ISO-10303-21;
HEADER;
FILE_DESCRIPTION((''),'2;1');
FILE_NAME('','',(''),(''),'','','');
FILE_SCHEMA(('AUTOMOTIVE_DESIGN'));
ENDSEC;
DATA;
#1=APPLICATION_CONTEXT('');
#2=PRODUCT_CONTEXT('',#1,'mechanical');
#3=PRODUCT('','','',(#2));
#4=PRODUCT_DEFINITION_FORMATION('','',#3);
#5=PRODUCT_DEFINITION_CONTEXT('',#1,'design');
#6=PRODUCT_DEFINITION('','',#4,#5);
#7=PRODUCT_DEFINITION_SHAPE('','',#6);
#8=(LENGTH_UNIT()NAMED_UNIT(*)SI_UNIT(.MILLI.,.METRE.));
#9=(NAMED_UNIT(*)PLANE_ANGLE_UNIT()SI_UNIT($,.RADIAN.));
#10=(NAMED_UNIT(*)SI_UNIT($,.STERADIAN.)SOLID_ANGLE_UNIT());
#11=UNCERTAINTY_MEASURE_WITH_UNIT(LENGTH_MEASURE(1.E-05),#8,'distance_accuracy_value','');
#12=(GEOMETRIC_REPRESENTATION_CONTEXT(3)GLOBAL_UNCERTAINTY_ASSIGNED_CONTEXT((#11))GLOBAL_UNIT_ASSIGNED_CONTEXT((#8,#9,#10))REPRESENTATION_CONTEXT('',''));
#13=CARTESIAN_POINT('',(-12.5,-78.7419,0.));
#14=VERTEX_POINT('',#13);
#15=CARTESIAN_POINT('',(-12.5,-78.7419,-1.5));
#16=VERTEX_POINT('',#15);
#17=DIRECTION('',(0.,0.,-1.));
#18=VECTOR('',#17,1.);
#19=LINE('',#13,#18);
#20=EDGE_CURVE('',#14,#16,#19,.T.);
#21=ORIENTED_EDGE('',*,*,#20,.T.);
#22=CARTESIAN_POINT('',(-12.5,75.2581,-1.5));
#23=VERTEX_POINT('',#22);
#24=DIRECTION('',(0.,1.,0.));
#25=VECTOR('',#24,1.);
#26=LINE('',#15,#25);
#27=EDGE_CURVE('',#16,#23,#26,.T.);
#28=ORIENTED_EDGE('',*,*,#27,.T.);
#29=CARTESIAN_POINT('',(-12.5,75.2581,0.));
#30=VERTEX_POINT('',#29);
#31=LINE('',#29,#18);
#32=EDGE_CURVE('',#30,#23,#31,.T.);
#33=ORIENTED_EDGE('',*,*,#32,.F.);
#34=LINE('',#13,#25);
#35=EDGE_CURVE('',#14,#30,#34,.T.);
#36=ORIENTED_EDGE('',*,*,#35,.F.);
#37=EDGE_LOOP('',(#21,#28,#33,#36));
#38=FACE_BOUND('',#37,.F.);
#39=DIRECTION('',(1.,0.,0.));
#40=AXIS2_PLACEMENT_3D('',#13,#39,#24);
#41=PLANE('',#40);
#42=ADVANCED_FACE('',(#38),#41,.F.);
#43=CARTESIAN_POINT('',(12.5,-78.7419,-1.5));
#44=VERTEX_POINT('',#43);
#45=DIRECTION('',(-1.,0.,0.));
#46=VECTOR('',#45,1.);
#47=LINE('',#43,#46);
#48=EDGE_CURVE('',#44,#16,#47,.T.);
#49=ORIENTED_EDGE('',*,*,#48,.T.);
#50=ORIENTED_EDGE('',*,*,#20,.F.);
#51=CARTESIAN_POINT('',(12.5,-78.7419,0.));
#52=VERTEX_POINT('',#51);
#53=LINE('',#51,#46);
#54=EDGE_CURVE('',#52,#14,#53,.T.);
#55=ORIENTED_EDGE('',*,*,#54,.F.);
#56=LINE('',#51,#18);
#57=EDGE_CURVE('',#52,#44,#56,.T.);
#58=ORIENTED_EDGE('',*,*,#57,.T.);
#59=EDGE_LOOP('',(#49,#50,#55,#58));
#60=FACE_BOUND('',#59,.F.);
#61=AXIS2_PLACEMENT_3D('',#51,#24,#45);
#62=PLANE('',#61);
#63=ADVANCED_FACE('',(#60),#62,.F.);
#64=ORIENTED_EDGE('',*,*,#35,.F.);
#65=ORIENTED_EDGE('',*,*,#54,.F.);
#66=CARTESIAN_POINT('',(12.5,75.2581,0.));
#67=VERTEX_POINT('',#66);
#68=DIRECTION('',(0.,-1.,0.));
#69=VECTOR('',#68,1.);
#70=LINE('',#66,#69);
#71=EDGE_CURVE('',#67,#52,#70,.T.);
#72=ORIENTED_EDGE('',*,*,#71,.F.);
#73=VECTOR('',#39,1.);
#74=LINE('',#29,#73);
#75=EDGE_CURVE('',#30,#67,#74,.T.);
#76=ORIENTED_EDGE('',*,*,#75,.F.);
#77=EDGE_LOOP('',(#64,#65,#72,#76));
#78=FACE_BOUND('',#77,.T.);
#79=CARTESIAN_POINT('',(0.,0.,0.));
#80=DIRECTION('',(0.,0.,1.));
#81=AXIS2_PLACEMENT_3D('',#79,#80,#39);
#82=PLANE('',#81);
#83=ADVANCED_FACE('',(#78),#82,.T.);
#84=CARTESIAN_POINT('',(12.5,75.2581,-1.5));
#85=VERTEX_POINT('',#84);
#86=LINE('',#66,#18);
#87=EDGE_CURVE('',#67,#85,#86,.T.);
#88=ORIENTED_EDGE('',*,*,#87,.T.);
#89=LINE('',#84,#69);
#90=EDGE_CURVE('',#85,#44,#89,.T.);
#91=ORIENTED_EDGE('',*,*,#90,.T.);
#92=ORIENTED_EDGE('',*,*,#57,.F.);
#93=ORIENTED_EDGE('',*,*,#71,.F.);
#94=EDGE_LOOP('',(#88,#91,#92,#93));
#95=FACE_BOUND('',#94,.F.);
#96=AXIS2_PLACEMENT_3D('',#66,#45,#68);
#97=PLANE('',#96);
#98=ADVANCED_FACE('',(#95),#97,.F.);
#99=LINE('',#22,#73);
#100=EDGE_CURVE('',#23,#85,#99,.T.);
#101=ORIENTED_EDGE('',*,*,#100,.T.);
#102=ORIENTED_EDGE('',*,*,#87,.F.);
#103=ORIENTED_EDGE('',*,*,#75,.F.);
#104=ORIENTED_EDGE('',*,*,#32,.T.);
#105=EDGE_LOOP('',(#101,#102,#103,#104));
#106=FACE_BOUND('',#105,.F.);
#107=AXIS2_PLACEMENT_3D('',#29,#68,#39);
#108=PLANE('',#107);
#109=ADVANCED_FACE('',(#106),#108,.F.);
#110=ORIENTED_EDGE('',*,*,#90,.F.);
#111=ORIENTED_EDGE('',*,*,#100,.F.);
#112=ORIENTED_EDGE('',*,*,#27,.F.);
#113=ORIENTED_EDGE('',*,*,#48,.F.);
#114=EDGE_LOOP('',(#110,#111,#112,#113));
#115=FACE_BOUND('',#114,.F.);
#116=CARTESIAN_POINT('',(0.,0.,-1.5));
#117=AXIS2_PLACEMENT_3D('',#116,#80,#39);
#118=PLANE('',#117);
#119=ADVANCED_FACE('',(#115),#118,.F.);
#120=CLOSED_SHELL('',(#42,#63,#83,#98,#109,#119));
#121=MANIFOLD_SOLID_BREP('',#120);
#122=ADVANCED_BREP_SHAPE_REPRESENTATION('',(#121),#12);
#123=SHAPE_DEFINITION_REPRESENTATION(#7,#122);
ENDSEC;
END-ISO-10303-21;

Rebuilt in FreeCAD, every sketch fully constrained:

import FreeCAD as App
import Part
import Sketcher

V = App.Vector


def add_polygon(sketch, points):
    """Adds a closed chain of lines whose ends are joined by coincident constraints."""
    first, n = sketch.GeometryCount, len(points)
    for a, b in zip(points, points[1:] + points[:1]):
        sketch.addGeometry(Part.LineSegment(App.Vector(*a, 0), App.Vector(*b, 0)), False)
    for i in range(n):
        sketch.addConstraint(Sketcher.Constraint("Coincident", first + i, 2, first + (i + 1) % n, 1))

doc = App.newDocument("Part")
body = doc.addObject("PartDesign::Body", "Body")

# Sketch on XY plane
sketch1 = body.newObject("Sketcher::SketchObject", "Sketch")
sketch1.AttachmentSupport = (doc.getObject("XY_Plane"), [""])
sketch1.MapMode = "FlatFace"
add_polygon(sketch1, [(12.5, 75.2581), (-12.5, 75.2581), (-12.5, -78.7419), (12.5, -78.7419)])  # lines 0-3
sketch1.addConstraint(Sketcher.Constraint("Horizontal", 0))
sketch1.addConstraint(Sketcher.Constraint("Vertical", 1))
sketch1.addConstraint(Sketcher.Constraint("Horizontal", 2))
sketch1.addConstraint(Sketcher.Constraint("Vertical", 3))
sketch1.addConstraint(Sketcher.Constraint("DistanceX", 0, 2, 0, 1, 25.0))
sketch1.addConstraint(Sketcher.Constraint("DistanceY", 1, 2, 1, 1, 154.0))
sketch1.addConstraint(Sketcher.Constraint("DistanceX", 0, 2, -1, 1, 12.5))
sketch1.addConstraint(Sketcher.Constraint("DistanceY", -1, 1, 0, 2, 75.258))
pad1 = body.newObject("PartDesign::Pad", "Pad")
pad1.Profile = sketch1
pad1.Length = 1.5
pad1.Reversed = True

doc.recompute()
